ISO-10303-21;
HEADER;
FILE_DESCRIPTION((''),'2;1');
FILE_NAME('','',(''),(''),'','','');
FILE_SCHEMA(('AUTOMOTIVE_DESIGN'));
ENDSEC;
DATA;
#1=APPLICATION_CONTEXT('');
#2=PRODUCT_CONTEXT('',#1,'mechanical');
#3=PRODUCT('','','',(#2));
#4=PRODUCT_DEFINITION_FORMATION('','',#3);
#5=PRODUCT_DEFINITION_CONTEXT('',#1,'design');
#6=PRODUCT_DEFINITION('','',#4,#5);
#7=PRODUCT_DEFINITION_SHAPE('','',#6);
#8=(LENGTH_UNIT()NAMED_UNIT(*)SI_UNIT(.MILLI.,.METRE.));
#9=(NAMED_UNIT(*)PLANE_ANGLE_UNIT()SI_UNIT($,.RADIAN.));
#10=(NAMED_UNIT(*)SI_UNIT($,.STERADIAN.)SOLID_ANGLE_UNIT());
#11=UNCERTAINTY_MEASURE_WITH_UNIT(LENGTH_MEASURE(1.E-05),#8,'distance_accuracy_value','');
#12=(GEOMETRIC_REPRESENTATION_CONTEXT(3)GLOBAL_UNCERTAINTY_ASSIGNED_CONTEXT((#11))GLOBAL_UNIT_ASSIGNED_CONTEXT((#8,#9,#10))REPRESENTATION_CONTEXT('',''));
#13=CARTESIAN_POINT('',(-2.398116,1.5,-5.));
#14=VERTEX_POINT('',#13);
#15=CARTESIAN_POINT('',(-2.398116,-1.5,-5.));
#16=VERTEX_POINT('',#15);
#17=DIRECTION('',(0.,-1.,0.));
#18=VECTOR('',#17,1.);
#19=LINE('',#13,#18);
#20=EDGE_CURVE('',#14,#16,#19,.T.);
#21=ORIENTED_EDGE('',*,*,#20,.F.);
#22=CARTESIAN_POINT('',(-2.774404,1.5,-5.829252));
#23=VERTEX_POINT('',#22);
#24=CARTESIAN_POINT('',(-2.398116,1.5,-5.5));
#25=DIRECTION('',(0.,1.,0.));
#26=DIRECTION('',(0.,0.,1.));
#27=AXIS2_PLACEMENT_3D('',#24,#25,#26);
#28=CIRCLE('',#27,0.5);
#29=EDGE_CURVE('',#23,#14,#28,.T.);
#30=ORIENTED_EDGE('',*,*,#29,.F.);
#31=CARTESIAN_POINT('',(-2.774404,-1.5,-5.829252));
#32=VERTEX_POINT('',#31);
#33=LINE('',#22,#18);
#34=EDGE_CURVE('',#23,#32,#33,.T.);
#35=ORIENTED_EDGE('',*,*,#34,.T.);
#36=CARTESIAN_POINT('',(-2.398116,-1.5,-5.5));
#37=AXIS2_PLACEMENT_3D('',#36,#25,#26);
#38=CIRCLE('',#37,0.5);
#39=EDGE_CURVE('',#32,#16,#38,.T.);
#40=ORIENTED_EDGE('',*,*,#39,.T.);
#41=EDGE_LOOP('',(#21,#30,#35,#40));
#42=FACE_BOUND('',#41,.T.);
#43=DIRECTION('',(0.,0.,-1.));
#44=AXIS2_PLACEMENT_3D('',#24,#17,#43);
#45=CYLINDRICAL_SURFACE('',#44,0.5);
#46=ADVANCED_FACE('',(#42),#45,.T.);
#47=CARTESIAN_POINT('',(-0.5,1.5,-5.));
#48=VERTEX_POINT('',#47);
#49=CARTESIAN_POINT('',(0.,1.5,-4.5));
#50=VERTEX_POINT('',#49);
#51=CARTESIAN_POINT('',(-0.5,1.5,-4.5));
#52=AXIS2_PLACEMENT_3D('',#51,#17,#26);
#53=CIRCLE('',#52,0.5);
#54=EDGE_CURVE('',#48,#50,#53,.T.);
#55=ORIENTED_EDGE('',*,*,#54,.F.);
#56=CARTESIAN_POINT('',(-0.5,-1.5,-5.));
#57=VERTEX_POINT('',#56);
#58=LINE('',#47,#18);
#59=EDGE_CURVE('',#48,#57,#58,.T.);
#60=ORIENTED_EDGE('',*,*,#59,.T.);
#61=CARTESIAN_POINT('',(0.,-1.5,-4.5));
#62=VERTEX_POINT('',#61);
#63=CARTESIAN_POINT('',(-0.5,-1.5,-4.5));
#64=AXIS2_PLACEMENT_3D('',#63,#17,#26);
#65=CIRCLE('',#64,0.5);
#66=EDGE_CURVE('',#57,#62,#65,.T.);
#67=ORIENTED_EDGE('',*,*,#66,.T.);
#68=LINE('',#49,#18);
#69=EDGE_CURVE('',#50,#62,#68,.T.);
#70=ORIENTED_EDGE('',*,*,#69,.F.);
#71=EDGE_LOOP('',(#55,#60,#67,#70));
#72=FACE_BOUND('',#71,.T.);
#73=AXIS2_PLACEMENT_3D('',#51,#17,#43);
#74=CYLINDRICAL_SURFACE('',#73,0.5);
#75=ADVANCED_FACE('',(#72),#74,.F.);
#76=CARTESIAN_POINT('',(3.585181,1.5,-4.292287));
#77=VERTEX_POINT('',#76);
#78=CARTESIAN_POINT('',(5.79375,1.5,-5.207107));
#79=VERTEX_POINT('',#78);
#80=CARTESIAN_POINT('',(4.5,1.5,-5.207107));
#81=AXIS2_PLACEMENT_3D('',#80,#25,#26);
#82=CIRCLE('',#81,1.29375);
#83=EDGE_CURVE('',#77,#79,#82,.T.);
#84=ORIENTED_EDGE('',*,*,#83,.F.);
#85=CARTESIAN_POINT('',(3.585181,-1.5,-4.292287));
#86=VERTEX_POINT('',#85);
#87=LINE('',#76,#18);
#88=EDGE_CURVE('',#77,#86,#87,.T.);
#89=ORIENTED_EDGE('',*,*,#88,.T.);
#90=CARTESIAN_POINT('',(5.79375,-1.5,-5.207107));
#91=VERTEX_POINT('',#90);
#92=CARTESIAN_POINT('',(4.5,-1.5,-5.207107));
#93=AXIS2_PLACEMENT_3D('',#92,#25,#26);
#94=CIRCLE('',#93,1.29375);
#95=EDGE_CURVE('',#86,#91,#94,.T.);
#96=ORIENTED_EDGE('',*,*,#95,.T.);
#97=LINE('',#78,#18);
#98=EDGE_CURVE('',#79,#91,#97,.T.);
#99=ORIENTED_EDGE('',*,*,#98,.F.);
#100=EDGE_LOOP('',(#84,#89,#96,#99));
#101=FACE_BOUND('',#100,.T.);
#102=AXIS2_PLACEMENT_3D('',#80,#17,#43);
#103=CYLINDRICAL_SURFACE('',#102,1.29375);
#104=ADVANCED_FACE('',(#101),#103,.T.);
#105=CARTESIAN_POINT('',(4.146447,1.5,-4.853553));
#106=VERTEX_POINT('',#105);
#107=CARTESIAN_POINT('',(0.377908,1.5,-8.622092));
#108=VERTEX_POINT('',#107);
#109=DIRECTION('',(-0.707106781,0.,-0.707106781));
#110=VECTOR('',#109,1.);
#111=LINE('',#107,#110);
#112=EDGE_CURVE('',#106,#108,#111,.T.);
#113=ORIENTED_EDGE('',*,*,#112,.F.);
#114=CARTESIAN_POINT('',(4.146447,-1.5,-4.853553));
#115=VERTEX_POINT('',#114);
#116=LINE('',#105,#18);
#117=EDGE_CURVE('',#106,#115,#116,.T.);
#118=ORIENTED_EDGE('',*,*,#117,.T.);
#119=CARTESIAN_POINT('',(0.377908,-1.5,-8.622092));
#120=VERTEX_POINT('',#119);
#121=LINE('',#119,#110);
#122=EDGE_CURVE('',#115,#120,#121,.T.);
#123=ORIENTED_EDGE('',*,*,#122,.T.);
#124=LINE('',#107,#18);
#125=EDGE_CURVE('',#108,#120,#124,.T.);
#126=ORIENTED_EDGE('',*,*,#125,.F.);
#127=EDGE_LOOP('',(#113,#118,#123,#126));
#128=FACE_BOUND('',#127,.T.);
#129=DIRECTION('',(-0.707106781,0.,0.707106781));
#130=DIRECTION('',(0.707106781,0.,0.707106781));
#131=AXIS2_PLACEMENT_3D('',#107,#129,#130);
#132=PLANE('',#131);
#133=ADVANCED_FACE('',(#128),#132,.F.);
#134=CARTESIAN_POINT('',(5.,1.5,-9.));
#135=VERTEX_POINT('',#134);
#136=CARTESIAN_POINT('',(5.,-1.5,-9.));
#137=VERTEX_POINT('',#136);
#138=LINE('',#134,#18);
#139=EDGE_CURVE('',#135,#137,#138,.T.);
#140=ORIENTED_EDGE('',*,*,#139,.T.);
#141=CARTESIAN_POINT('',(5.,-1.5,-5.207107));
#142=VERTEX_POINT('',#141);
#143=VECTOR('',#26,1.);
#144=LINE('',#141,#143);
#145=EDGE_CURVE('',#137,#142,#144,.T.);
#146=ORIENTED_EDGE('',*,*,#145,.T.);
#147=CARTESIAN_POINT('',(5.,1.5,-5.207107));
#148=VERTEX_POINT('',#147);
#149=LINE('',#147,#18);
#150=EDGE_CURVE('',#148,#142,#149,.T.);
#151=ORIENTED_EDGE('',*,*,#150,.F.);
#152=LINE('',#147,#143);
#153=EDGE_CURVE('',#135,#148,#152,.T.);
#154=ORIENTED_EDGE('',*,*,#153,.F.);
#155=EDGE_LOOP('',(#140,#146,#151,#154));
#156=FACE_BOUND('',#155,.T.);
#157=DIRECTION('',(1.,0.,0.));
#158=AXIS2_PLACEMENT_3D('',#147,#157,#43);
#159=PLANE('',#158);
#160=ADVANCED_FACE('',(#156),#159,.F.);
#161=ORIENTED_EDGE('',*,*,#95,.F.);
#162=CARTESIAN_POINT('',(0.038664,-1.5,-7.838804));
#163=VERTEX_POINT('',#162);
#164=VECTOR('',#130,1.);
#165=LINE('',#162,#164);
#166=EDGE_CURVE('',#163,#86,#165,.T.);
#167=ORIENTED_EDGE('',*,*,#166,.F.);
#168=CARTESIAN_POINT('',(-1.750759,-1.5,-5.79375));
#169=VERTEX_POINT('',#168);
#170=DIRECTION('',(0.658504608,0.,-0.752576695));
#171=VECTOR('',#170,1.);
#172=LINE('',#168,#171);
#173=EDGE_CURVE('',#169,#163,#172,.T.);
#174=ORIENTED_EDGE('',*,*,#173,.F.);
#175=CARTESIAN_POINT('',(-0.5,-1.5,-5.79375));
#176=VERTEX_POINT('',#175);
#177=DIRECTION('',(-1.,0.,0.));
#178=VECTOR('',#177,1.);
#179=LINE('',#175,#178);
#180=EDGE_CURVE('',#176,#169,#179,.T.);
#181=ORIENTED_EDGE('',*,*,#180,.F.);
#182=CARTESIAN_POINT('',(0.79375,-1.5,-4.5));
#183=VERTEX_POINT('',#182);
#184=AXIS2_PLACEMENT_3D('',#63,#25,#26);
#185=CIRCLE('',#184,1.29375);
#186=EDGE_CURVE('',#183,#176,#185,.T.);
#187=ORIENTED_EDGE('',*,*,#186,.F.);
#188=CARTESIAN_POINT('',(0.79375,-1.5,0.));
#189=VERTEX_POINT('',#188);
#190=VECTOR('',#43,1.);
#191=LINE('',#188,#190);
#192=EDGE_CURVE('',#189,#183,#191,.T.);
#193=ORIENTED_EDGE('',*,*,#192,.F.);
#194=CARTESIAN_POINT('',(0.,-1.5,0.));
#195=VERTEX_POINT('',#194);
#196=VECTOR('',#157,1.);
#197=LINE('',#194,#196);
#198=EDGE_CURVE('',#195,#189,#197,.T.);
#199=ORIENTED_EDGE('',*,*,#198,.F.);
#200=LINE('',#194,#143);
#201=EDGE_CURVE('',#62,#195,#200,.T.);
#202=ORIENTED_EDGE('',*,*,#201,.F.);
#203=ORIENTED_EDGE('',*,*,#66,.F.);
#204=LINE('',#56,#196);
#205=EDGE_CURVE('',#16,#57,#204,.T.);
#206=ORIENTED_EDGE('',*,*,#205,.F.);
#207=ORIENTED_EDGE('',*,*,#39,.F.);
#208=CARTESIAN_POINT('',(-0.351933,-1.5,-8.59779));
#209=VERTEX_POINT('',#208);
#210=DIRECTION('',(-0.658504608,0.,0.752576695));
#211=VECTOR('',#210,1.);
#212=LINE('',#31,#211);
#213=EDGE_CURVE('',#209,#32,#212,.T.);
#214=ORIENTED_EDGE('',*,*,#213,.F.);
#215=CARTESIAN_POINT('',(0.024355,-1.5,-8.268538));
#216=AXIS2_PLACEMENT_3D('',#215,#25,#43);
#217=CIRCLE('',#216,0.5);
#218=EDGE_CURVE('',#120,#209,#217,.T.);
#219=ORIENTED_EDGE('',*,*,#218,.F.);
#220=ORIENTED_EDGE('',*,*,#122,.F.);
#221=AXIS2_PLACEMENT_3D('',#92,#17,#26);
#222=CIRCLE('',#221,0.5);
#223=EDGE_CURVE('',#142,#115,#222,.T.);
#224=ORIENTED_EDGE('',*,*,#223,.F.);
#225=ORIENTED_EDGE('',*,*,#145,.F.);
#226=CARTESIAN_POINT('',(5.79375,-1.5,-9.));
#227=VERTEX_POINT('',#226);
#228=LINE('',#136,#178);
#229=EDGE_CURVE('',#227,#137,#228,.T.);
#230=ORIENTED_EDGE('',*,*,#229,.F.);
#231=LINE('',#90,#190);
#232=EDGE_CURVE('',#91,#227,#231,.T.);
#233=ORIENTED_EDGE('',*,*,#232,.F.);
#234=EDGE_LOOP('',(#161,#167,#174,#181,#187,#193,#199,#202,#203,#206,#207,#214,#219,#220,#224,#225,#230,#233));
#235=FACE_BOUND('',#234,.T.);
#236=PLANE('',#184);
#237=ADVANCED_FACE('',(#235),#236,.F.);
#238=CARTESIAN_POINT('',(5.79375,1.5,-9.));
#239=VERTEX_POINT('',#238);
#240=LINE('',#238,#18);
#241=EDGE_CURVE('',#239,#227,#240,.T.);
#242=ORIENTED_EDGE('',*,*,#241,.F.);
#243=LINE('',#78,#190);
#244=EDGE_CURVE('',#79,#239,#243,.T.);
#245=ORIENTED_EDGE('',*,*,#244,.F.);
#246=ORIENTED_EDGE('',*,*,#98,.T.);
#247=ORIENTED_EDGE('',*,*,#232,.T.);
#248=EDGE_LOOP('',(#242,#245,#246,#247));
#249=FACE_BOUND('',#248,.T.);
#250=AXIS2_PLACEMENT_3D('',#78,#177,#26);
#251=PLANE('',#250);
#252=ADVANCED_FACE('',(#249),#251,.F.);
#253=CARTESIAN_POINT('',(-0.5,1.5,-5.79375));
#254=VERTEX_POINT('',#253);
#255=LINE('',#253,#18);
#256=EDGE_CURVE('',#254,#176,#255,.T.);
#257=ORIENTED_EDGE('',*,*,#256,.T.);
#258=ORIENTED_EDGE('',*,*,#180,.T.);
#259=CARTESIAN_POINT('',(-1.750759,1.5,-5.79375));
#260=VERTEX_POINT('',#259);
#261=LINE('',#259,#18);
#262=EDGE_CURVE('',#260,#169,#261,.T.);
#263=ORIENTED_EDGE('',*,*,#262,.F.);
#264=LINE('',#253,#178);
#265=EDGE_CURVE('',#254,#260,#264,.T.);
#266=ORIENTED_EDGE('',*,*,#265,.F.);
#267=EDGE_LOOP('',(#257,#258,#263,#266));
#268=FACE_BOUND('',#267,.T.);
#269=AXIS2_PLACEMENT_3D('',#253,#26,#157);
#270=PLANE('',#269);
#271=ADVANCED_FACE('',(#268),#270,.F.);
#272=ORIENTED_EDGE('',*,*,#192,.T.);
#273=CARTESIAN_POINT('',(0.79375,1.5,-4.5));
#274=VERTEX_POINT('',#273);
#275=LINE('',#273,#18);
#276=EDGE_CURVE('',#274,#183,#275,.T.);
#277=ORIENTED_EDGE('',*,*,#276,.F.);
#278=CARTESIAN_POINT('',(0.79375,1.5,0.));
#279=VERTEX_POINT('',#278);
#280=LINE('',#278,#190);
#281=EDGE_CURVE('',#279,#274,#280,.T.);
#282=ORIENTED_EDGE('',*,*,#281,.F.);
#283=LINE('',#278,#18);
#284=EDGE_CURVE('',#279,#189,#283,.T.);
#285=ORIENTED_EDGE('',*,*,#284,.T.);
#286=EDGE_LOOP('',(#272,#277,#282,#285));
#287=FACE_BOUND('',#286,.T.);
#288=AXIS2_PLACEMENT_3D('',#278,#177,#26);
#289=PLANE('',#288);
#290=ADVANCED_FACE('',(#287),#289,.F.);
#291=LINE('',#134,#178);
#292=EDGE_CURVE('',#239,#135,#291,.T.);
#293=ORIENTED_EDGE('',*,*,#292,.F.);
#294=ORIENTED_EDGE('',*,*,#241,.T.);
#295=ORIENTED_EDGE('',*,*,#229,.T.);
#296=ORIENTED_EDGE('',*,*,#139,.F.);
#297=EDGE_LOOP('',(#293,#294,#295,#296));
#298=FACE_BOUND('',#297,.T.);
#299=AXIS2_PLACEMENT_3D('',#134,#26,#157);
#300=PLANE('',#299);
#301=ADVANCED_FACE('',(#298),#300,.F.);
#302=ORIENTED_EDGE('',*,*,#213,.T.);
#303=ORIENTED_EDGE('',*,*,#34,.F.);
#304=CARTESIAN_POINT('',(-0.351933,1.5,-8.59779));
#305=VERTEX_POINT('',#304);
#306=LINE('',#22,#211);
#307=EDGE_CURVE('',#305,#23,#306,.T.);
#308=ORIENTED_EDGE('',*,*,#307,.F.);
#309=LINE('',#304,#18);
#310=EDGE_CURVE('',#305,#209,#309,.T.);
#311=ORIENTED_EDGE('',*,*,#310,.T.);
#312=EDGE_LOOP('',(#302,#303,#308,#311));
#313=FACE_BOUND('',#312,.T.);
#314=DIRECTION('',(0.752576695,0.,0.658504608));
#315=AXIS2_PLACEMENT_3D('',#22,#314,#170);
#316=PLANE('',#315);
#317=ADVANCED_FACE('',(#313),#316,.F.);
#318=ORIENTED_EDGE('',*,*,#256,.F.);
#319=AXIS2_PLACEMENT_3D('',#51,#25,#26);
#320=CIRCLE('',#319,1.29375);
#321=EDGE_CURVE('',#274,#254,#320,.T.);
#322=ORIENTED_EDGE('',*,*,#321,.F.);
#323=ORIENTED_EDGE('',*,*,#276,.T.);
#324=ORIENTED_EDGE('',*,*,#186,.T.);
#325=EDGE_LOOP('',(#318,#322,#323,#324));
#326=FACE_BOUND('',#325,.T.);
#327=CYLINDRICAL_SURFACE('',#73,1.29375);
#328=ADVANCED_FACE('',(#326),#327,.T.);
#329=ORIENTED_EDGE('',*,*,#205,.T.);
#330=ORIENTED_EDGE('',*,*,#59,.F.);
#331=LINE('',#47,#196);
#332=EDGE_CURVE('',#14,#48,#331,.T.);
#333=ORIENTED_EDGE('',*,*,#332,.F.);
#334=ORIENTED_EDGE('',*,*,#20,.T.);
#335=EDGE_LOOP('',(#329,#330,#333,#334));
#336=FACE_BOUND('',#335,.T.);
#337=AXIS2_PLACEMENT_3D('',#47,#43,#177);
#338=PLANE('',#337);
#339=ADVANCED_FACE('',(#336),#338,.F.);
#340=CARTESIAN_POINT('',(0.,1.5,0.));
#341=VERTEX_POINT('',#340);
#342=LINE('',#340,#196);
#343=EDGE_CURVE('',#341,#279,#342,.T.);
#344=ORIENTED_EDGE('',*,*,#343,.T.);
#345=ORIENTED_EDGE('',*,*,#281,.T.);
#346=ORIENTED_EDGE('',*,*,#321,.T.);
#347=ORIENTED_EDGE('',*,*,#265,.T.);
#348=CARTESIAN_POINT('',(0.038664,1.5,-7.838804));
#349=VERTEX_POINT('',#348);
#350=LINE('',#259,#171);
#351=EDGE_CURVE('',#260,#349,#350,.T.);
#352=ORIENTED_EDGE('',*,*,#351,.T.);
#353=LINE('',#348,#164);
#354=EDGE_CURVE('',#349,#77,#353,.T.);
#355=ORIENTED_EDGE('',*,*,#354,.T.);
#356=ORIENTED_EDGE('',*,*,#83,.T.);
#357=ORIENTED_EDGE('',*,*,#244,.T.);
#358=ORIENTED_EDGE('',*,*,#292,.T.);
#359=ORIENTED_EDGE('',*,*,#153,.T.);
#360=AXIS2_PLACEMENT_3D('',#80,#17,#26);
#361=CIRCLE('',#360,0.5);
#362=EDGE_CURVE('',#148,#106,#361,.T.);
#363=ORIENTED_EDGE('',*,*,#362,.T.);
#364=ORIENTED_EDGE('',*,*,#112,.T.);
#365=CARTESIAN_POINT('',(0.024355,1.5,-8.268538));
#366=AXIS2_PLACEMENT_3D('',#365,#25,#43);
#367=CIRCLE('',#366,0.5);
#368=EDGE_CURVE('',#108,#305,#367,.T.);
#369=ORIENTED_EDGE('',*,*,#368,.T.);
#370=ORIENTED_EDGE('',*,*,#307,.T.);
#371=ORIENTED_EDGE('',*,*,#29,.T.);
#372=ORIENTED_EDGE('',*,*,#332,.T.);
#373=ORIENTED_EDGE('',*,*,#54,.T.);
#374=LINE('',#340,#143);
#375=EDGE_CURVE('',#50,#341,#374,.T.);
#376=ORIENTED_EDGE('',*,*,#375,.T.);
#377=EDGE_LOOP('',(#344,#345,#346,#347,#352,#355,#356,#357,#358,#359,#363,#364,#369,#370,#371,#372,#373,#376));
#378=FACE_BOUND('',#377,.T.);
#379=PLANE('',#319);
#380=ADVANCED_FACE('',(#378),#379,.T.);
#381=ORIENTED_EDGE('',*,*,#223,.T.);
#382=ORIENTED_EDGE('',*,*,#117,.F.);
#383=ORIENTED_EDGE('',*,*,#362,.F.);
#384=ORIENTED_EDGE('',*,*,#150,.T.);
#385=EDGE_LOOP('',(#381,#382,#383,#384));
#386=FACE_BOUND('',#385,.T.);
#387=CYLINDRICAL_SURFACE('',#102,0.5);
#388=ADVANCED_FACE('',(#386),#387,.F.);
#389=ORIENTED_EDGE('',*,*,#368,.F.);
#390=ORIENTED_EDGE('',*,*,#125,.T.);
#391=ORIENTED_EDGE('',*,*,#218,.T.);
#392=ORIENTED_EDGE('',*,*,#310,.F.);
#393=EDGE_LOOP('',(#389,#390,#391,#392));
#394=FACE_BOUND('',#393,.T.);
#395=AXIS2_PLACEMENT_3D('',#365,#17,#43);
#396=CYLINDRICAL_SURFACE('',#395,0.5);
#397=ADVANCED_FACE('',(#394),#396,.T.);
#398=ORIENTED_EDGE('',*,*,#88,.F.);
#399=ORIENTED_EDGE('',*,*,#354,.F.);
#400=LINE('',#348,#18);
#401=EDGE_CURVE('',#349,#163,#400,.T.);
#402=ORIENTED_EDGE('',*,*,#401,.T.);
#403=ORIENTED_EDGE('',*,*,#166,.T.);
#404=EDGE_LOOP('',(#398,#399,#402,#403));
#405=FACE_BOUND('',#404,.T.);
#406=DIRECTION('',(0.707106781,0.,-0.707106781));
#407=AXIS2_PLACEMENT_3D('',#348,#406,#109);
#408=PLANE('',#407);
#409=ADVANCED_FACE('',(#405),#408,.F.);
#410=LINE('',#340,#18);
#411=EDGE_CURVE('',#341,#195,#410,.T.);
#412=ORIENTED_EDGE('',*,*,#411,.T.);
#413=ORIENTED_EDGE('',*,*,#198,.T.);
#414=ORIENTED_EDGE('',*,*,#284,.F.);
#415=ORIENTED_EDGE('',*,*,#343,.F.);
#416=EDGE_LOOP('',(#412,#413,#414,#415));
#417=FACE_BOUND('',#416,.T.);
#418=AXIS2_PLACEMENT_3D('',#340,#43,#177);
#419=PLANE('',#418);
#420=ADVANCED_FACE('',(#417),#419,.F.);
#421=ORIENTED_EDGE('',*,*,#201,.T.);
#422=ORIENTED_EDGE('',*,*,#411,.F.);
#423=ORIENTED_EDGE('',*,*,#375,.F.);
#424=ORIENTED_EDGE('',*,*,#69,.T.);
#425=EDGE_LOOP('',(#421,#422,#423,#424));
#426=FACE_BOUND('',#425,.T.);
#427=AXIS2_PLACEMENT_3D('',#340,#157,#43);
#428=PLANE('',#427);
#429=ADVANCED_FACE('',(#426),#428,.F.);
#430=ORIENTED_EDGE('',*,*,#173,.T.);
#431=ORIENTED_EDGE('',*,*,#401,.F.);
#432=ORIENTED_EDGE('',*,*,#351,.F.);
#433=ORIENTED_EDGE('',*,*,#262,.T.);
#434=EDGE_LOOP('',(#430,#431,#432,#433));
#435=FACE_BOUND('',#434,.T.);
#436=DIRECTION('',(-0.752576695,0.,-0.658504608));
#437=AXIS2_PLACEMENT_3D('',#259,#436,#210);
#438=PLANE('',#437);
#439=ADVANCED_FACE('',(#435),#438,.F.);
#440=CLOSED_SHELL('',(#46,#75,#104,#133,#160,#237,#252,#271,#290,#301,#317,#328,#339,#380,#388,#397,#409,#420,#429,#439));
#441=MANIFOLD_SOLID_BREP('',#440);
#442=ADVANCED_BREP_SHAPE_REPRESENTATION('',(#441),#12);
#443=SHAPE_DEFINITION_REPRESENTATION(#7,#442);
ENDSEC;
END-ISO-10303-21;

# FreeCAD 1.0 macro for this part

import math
import FreeCAD as App
import Part
import Sketcher

V = App.Vector
Q = App.Units.Quantity

doc = App.newDocument("Part")
params = doc.addObject("Spreadsheet::Sheet", "Params")
for row, (alias, value) in enumerate([
    ("sketch1_radius", "0.5 mm"),
    ("sketch1_height", "4.5 mm"),
    ("pad1_length", "3 mm"),
], start=1):
    params.set(f"A{row}", alias)
    params.set(f"B{row}", "=" + value)
    params.setAlias(f"B{row}", alias)

body = doc.addObject("PartDesign::Body", "Body")

# Sketch on XZ plane
sketch1 = doc.addObject("Sketcher::SketchObject", "Sketch")
body.addObject(sketch1)
sketch1.AttachmentSupport = (doc.XZ_Plane, [""])
sketch1.MapMode = "FlatFace"
sketch1.addGeometry([
    Part.LineSegment(V(0, -4.5, 0), V(0, 0, 0)),  # 0
    Part.LineSegment(V(0, 0, 0), V(0.79375, 0, 0)),  # 1
    Part.LineSegment(V(0.79375, 0, 0), V(0.79375, -4.5, 0)),  # 2
    Part.ArcOfCircle(Part.Circle(V(-0.5, -4.5, 0), V(0, 0, 1), 1.29375), math.radians(-90), math.radians(0)),  # 3
    Part.LineSegment(V(-0.5, -5.79375, 0), V(-1.750759, -5.79375, 0)),  # 4
    Part.LineSegment(V(-1.750759, -5.79375, 0), V(0.038664, -7.838804, 0)),  # 5
    Part.LineSegment(V(0.038664, -7.838804, 0), V(3.585181, -4.292287, 0)),  # 6
    Part.ArcOfCircle(Part.Circle(V(4.5, -5.207107, 0), V(0, 0, 1), 1.29375), math.radians(0), math.radians(135)),  # 7
    Part.LineSegment(V(5.79375, -5.207107, 0), V(5.79375, -9, 0)),  # 8
    Part.LineSegment(V(5.79375, -9, 0), V(5, -9, 0)),  # 9
    Part.LineSegment(V(5, -9, 0), V(5, -5.207107, 0)),  # 10
    Part.ArcOfCircle(Part.Circle(V(4.5, -5.207107, 0), V(0, 0, 1), 0.5), math.radians(0), math.radians(135)),  # 11
    Part.LineSegment(V(4.146447, -4.853553, 0), V(0.377908, -8.622092, 0)),  # 12
    Part.ArcOfCircle(Part.Circle(V(0.024355, -8.268538, 0), V(0, 0, 1), 0.5), math.radians(-138.814075), math.radians(-45)),  # 13
    Part.LineSegment(V(-0.351933, -8.59779, 0), V(-2.774404, -5.829252, 0)),  # 14
    Part.ArcOfCircle(Part.Circle(V(-2.398116, -5.5, 0), V(0, 0, 1), 0.5), math.radians(90), math.radians(221.185925)),  # 15
    Part.LineSegment(V(-2.398116, -5, 0), V(-0.5, -5, 0)),  # 16
    Part.ArcOfCircle(Part.Circle(V(-0.5, -4.5, 0), V(0, 0, 1), 0.5), math.radians(-90), math.radians(0)),  # 17
], False)
sketch1.addConstraint([
    Sketcher.Constraint("Coincident", 0, 2, 1, 1),
    Sketcher.Constraint("Coincident", 1, 2, 2, 1),
    Sketcher.Constraint("Tangent", 2, 2, 3, 2),
    Sketcher.Constraint("Tangent", 3, 1, 4, 1),
    Sketcher.Constraint("Coincident", 4, 2, 5, 1),
    Sketcher.Constraint("Coincident", 5, 2, 6, 1),
    Sketcher.Constraint("Tangent", 6, 2, 7, 2),
    Sketcher.Constraint("Tangent", 7, 1, 8, 1),
    Sketcher.Constraint("Coincident", 8, 2, 9, 1),
    Sketcher.Constraint("Coincident", 9, 2, 10, 1),
    Sketcher.Constraint("Tangent", 10, 2, 11, 1),
    Sketcher.Constraint("Tangent", 11, 2, 12, 1),
    Sketcher.Constraint("Tangent", 12, 2, 13, 2),
    Sketcher.Constraint("Tangent", 13, 1, 14, 1),
    Sketcher.Constraint("Tangent", 14, 2, 15, 2),
    Sketcher.Constraint("Tangent", 15, 1, 16, 1),
    Sketcher.Constraint("Tangent", 16, 2, 17, 1),
    Sketcher.Constraint("Tangent", 17, 2, 0, 1),
    Sketcher.Constraint("Vertical", 0),
    Sketcher.Constraint("Horizontal", 1),
    Sketcher.Constraint("Vertical", 2),
    Sketcher.Constraint("Horizontal", 4),
    Sketcher.Constraint("Vertical", 8),
    Sketcher.Constraint("Horizontal", 9),
    Sketcher.Constraint("Vertical", 10),
    Sketcher.Constraint("Horizontal", 16),
    Sketcher.Constraint("Coincident", 0, 2, -1, 1),
    Sketcher.Constraint("Coincident", 11, 3, 7, 3),
    Sketcher.Constraint("Coincident", 17, 3, 3, 3),
    Sketcher.Constraint("Equal", 3, 7),
    Sketcher.Constraint("Equal", 11, 13),
    Sketcher.Constraint("Equal", 13, 15),
    Sketcher.Constraint("Equal", 15, 17),
    Sketcher.Constraint("Parallel", 6, 12),
    Sketcher.Constraint("Parallel", 5, 14),
    Sketcher.Constraint("Radius", 11, 0.5),
    Sketcher.Constraint("Angle", 6, Q("45 deg")),
    Sketcher.Constraint("DistanceY", 0, 1, 0, 2, 4.5),
    Sketcher.Constraint("DistanceY", 8, 2, -1, 1, 9.0),
    Sketcher.Constraint("DistanceX", -1, 1, 9, 2, 5.0),
    Sketcher.Constraint("Radius", 3, 1.29375),
    Sketcher.Constraint("DistanceX", 4, 2, 4, 1, 1.250759),
    Sketcher.Constraint("DistanceY", 12, 2, 13, 1, 0.024301),
    Sketcher.Constraint("DistanceX", 16, 1, 16, 2, 1.898116),
    Sketcher.Constraint("DistanceY", 8, 2, 8, 1, 3.792893),
])
sketch1.setExpression("Constraints[35]", "Params.sketch1_radius")
sketch1.setExpression("Constraints[37]", "Params.sketch1_height")
pad1 = doc.addObject("PartDesign::Pad", "Pad")
body.addObject(pad1)
pad1.Profile = sketch1
pad1.setExpression("Length", "Params.pad1_length")
pad1.Midplane = True

doc.recompute()
